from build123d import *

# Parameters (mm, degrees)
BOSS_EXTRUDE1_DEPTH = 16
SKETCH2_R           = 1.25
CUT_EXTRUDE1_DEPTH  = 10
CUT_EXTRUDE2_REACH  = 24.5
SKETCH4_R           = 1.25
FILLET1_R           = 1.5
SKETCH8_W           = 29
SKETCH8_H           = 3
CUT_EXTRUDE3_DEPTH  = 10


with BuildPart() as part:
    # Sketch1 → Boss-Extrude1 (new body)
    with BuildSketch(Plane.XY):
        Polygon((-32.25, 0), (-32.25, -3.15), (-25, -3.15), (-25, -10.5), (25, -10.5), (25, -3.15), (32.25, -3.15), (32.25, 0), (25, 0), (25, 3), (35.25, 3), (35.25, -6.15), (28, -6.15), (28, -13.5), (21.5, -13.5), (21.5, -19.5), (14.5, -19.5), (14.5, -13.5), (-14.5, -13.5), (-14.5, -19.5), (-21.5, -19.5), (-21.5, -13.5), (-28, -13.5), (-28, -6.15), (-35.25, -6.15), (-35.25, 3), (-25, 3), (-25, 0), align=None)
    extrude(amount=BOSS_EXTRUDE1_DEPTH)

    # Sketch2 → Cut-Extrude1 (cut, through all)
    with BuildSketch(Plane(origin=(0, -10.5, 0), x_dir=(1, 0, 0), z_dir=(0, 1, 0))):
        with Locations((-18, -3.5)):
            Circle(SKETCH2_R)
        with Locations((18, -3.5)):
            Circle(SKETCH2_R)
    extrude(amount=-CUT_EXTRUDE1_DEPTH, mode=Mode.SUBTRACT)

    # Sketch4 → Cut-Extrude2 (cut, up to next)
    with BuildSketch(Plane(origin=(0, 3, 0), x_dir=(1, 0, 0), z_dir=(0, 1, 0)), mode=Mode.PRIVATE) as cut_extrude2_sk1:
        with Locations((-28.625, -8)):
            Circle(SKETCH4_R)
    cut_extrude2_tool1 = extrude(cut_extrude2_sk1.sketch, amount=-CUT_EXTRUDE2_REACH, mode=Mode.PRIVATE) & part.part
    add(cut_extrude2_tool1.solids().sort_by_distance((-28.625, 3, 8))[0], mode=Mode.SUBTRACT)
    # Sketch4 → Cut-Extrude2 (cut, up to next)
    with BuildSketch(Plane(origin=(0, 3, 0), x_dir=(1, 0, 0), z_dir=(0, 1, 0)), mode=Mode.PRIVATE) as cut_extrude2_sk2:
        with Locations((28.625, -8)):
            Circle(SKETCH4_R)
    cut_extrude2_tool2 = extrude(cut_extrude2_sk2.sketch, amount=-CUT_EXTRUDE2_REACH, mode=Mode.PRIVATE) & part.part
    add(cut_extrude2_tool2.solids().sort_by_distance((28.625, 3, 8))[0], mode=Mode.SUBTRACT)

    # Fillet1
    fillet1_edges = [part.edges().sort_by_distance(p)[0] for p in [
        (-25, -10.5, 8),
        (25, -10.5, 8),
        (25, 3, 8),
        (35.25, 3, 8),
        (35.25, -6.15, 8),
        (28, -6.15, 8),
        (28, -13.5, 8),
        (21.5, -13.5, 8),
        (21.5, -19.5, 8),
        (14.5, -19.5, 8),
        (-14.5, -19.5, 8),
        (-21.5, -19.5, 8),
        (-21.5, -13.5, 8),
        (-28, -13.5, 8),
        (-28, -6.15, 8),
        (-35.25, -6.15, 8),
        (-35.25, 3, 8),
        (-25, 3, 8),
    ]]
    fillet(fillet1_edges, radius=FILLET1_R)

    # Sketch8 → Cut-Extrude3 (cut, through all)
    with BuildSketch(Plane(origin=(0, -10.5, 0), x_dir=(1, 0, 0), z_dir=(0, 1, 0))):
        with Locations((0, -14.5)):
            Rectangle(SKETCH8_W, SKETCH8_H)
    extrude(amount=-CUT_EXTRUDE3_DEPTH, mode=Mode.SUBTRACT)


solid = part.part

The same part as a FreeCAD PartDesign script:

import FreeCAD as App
import Part
import Sketcher


def edges_at(feature, points):
    """Names of the edges that pass closest to the given points."""
    edges = feature.Shape.Edges
    near = lambda p: min(range(len(edges)), key=lambda i: edges[i].distToShape(Part.Vertex(*p))[0])
    return sorted({f"Edge{near(p) + 1}" for p in points})

doc = App.newDocument("Part")
body = doc.addObject("PartDesign::Body", "Body")

sketch1 = body.newObject("Sketcher::SketchObject", "Sketch")
sketch1.AttachmentSupport = (doc.getObject("XY_Plane"), [""])
sketch1.MapMode = "FlatFace"
sketch1.addGeometry(Part.LineSegment(App.Vector(-32.2, -3.1, 0), App.Vector(-32.2, 0, 0)), False)
sketch1.addGeometry(Part.LineSegment(App.Vector(-32.2, 0, 0), App.Vector(-25, 0, 0)), False)
sketch1.addGeometry(Part.LineSegment(App.Vector(-25, 0, 0), App.Vector(-25, 3, 0)), False)
sketch1.addGeometry(Part.LineSegment(App.Vector(-25, 3, 0), App.Vector(-35.2, 3, 0)), False)
sketch1.addGeometry(Part.LineSegment(App.Vector(-35.2, 3, 0), App.Vector(-35.2, -6.2, 0)), False)
sketch1.addGeometry(Part.LineSegment(App.Vector(-35.2, -6.2, 0), App.Vector(-28, -6.2, 0)), False)
sketch1.addGeometry(Part.LineSegment(App.Vector(-28, -6.2, 0), App.Vector(-28, -13.5, 0)), False)
sketch1.addGeometry(Part.LineSegment(App.Vector(-28, -13.5, 0), App.Vector(-21.5, -13.5, 0)), False)
sketch1.addGeometry(Part.LineSegment(App.Vector(-21.5, -13.5, 0), App.Vector(-21.5, -19.5, 0)), False)
sketch1.addGeometry(Part.LineSegment(App.Vector(-21.5, -19.5, 0), App.Vector(-14.5, -19.5, 0)), False)
sketch1.addGeometry(Part.LineSegment(App.Vector(-14.5, -19.5, 0), App.Vector(-14.5, -13.5, 0)), False)
sketch1.addGeometry(Part.LineSegment(App.Vector(-14.5, -13.5, 0), App.Vector(14.5, -13.5, 0)), False)
sketch1.addGeometry(Part.LineSegment(App.Vector(14.5, -13.5, 0), App.Vector(14.5, -19.5, 0)), False)
sketch1.addGeometry(Part.LineSegment(App.Vector(14.5, -19.5, 0), App.Vector(21.5, -19.5, 0)), False)
sketch1.addGeometry(Part.LineSegment(App.Vector(21.5, -19.5, 0), App.Vector(21.5, -13.5, 0)), False)
sketch1.addGeometry(Part.LineSegment(App.Vector(21.5, -13.5, 0), App.Vector(28, -13.5, 0)), False)
sketch1.addGeometry(Part.LineSegment(App.Vector(28, -13.5, 0), App.Vector(28, -6.2, 0)), False)
sketch1.addGeometry(Part.LineSegment(App.Vector(28, -6.2, 0), App.Vector(35.2, -6.2, 0)), False)
sketch1.addGeometry(Part.LineSegment(App.Vector(35.2, -6.2, 0), App.Vector(35.2, 3, 0)), False)
sketch1.addGeometry(Part.LineSegment(App.Vector(35.2, 3, 0), App.Vector(25, 3, 0)), False)
sketch1.addGeometry(Part.LineSegment(App.Vector(25, 3, 0), App.Vector(25, 0, 0)), False)
sketch1.addGeometry(Part.LineSegment(App.Vector(25, 0, 0), App.Vector(32.2, 0, 0)), False)
sketch1.addGeometry(Part.LineSegment(App.Vector(32.2, 0, 0), App.Vector(32.2, -3.1, 0)), False)
sketch1.addGeometry(Part.LineSegment(App.Vector(32.2, -3.1, 0), App.Vector(25, -3.1, 0)), False)
sketch1.addGeometry(Part.LineSegment(App.Vector(25, -3.1, 0), App.Vector(25, -10.5, 0)), False)
sketch1.addGeometry(Part.LineSegment(App.Vector(25, -10.5, 0), App.Vector(-25, -10.5, 0)), False)
sketch1.addGeometry(Part.LineSegment(App.Vector(-25, -10.5, 0), App.Vector(-25, -3.1, 0)), False)
sketch1.addGeometry(Part.LineSegment(App.Vector(-25, -3.1, 0), App.Vector(-32.2, -3.1, 0)), False)
sketch1.addConstraint(Sketcher.Constraint("Coincident", 0, 2, 1, 1))
sketch1.addConstraint(Sketcher.Constraint("Coincident", 1, 2, 2, 1))
sketch1.addConstraint(Sketcher.Constraint("Coincident", 2, 2, 3, 1))
sketch1.addConstraint(Sketcher.Constraint("Coincident", 3, 2, 4, 1))
sketch1.addConstraint(Sketcher.Constraint("Coincident", 4, 2, 5, 1))
sketch1.addConstraint(Sketcher.Constraint("Coincident", 5, 2, 6, 1))
sketch1.addConstraint(Sketcher.Constraint("Coincident", 6, 2, 7, 1))
sketch1.addConstraint(Sketcher.Constraint("Coincident", 7, 2, 8, 1))
sketch1.addConstraint(Sketcher.Constraint("Coincident", 8, 2, 9, 1))
sketch1.addConstraint(Sketcher.Constraint("Coincident", 9, 2, 10, 1))
sketch1.addConstraint(Sketcher.Constraint("Coincident", 10, 2, 11, 1))
sketch1.addConstraint(Sketcher.Constraint("Coincident", 11, 2, 12, 1))
sketch1.addConstraint(Sketcher.Constraint("Coincident", 12, 2, 13, 1))
sketch1.addConstraint(Sketcher.Constraint("Coincident", 13, 2, 14, 1))
sketch1.addConstraint(Sketcher.Constraint("Coincident", 14, 2, 15, 1))
sketch1.addConstraint(Sketcher.Constraint("Coincident", 15, 2, 16, 1))
sketch1.addConstraint(Sketcher.Constraint("Coincident", 16, 2, 17, 1))
sketch1.addConstraint(Sketcher.Constraint("Coincident", 17, 2, 18, 1))
sketch1.addConstraint(Sketcher.Constraint("Coincident", 18, 2, 19, 1))
sketch1.addConstraint(Sketcher.Constraint("Coincident", 19, 2, 20, 1))
sketch1.addConstraint(Sketcher.Constraint("Coincident", 20, 2, 21, 1))
sketch1.addConstraint(Sketcher.Constraint("Coincident", 21, 2, 22, 1))
sketch1.addConstraint(Sketcher.Constraint("Coincident", 22, 2, 23, 1))
sketch1.addConstraint(Sketcher.Constraint("Coincident", 23, 2, 24, 1))
sketch1.addConstraint(Sketcher.Constraint("Coincident", 24, 2, 25, 1))
sketch1.addConstraint(Sketcher.Constraint("Coincident", 25, 2, 26, 1))
sketch1.addConstraint(Sketcher.Constraint("Coincident", 26, 2, 27, 1))
sketch1.addConstraint(Sketcher.Constraint("Coincident", 27, 2, 0, 1))
sketch1.addConstraint(Sketcher.Constraint("Vertical", 0))
sketch1.addConstraint(Sketcher.Constraint("Horizontal", 1))
sketch1.addConstraint(Sketcher.Constraint("Vertical", 2))
sketch1.addConstraint(Sketcher.Constraint("Horizontal", 3))
sketch1.addConstraint(Sketcher.Constraint("Vertical", 4))
sketch1.addConstraint(Sketcher.Constraint("Horizontal", 5))
sketch1.addConstraint(Sketcher.Constraint("Vertical", 6))
sketch1.addConstraint(Sketcher.Constraint("Horizontal", 7))
sketch1.addConstraint(Sketcher.Constraint("Vertical", 8))
sketch1.addConstraint(Sketcher.Constraint("Horizontal", 9))
sketch1.addConstraint(Sketcher.Constraint("Vertical", 10))
sketch1.addConstraint(Sketcher.Constraint("Horizontal", 11))
sketch1.addConstraint(Sketcher.Constraint("Vertical", 12))
sketch1.addConstraint(Sketcher.Constraint("Horizontal", 13))
sketch1.addConstraint(Sketcher.Constraint("Vertical", 14))
sketch1.addConstraint(Sketcher.Constraint("Horizontal", 15))
sketch1.addConstraint(Sketcher.Constraint("Vertical", 16))
sketch1.addConstraint(Sketcher.Constraint("Horizontal", 17))
sketch1.addConstraint(Sketcher.Constraint("Vertical", 18))
sketch1.addConstraint(Sketcher.Constraint("Horizontal", 19))
sketch1.addConstraint(Sketcher.Constraint("Vertical", 20))
sketch1.addConstraint(Sketcher.Constraint("Horizontal", 21))
sketch1.addConstraint(Sketcher.Constraint("Vertical", 22))
sketch1.addConstraint(Sketcher.Constraint("Horizontal", 23))
sketch1.addConstraint(Sketcher.Constraint("Vertical", 24))
sketch1.addConstraint(Sketcher.Constraint("Horizontal", 25))
sketch1.addConstraint(Sketcher.Constraint("Vertical", 26))
sketch1.addConstraint(Sketcher.Constraint("Horizontal", 27))
sketch1.addConstraint(Sketcher.Constraint("Symmetric", 1, 2, 20, 2, -1, 1))
sketch1.addConstraint(Sketcher.Constraint("Symmetric", 9, 2, 12, 2, -2))
sketch1.addConstraint(Sketcher.Constraint("Symmetric", 7, 2, 14, 2, -2))
sketch1.addConstraint(Sketcher.Constraint("Symmetric", 5, 2, 16, 2, -2))
sketch1.addConstraint(Sketcher.Constraint("Symmetric", 3, 2, 18, 2, -2))
sketch1.addConstraint(Sketcher.Constraint("Symmetric", 0, 2, 21, 2, -2))
sketch1.addConstraint(Sketcher.Constraint("Symmetric", 23, 2, 26, 2, -2))
sketch1.addConstraint(Sketcher.Constraint("Horizontal", 7, 2, 10, 2))
sketch1.addConstraint(Sketcher.Constraint("Vertical", 20, 2, 23, 2))
sketch1.addConstraint(Sketcher.Constraint("Equal", 1, 5))
sketch1.addConstraint(Sketcher.Constraint("Equal", 16, 24))
sketch1.addConstraint(Sketcher.Constraint("DistanceX", 9, 1, 9, 2, 7.0))
sketch1.addConstraint(Sketcher.Constraint("DistanceX", 11, 1, 11, 2, 29.0))
sketch1.addConstraint(Sketcher.Constraint("DistanceX", 25, 2, 25, 1, 50.0))
sketch1.addConstraint(Sketcher.Constraint("DistanceY", 2, 1, 2, 2, 3.0))
sketch1.addConstraint(Sketcher.Constraint("DistanceY", 8, 2, 8, 1, 6.0))
sketch1.addConstraint(Sketcher.Constraint("DistanceX", 7, 1, 7, 2, 6.5))
sketch1.addConstraint(Sketcher.Constraint("DistanceY", 17, 2, 22, 2, 3.0))
sketch1.addConstraint(Sketcher.Constraint("DistanceX", 1, 1, 1, 2, 7.25))
sketch1.addConstraint(Sketcher.Constraint("DistanceY", 0, 1, 0, 2, 3.15))
sketch1.addConstraint(Sketcher.Constraint("DistanceY", 6, 2, 6, 1, 7.35))
pad1 = body.newObject("PartDesign::Pad", "Pad")
pad1.Profile = sketch1
pad1.Length = 16

sketch2 = body.newObject("Sketcher::SketchObject", "Sketch001")
sketch2.AttachmentSupport = (doc.getObject("XZ_Plane"), [""])
sketch2.MapMode = "FlatFace"
sketch2.AttachmentOffset = App.Placement(App.Vector(0, 0, 10.5), App.Rotation())
sketch2.addGeometry(Part.Circle(App.Vector(-18, 3.5, 0), App.Vector(0, 0, 1), 1.2), False)
sketch2.addGeometry(Part.Circle(App.Vector(18, 3.5, 0), App.Vector(0, 0, 1), 1.2), False)
sketch2.addConstraint(Sketcher.Constraint("Equal", 0, 1))
sketch2.addConstraint(Sketcher.Constraint("Symmetric", 0, 3, 1, 3, -2))
sketch2.addConstraint(Sketcher.Constraint("Diameter", 0, 2.5))
sketch2.addConstraint(Sketcher.Constraint("DistanceX", 0, 3, -1, 1, 18.0))
sketch2.addConstraint(Sketcher.Constraint("DistanceY", -1, 1, 0, 3, 3.5))
pocket1 = body.newObject("PartDesign::Pocket", "Pocket")
pocket1.Profile = sketch2
pocket1.Type = "ThroughAll"
pocket1.Reversed = True

sketch3 = body.newObject("Sketcher::SketchObject", "Sketch002")
sketch3.AttachmentSupport = (doc.getObject("XZ_Plane"), [""])
sketch3.MapMode = "FlatFace"
sketch3.AttachmentOffset = App.Placement(App.Vector(0, 0, -3), App.Rotation())
sketch3.addGeometry(Part.Circle(App.Vector(-28.6, 8, 0), App.Vector(0, 0, 1), 1.2), False)
sketch3.addConstraint(Sketcher.Constraint("Diameter", 0, 2.5))
sketch3.addConstraint(Sketcher.Constraint("DistanceY", -1, 1, 0, 3, 8.0))
sketch3.addConstraint(Sketcher.Constraint("DistanceX", 0, 3, -1, 1, 28.625))
pocket2 = body.newObject("PartDesign::Pocket", "Pocket001")
pocket2.Profile = sketch3
pocket2.Type = "UpToFirst"
pocket2.Reversed = True

sketch4 = body.newObject("Sketcher::SketchObject", "Sketch003")
sketch4.AttachmentSupport = (doc.getObject("XZ_Plane"), [""])
sketch4.MapMode = "FlatFace"
sketch4.AttachmentOffset = App.Placement(App.Vector(0, 0, -3), App.Rotation())
sketch4.addGeometry(Part.Circle(App.Vector(28.6, 8, 0), App.Vector(0, 0, 1), 1.2), False)
sketch4.addConstraint(Sketcher.Constraint("Diameter", 0, 2.5))
sketch4.addConstraint(Sketcher.Constraint("DistanceY", -1, 1, 0, 3, 8.0))
sketch4.addConstraint(Sketcher.Constraint("DistanceX", -1, 1, 0, 3, 28.625))
pocket3 = body.newObject("PartDesign::Pocket", "Pocket002")
pocket3.Profile = sketch4
pocket3.Type = "UpToFirst"
pocket3.Reversed = True
doc.recompute()

fillet = body.newObject("PartDesign::Fillet", "Fillet")
fillet.Base = (pocket3, edges_at(pocket3, [
    (-25, -10.5, 8),
    (25, -10.5, 8),
    (25, 3, 8),
    (35.25, 3, 8),
    (35.25, -6.15, 8),
    (28, -6.15, 8),
    (28, -13.5, 8),
    (21.5, -13.5, 8),
    (21.5, -19.5, 8),
    (14.5, -19.5, 8),
    (-14.5, -19.5, 8),
    (-21.5, -19.5, 8),
    (-21.5, -13.5, 8),
    (-28, -13.5, 8),
    (-28, -6.15, 8),
    (-35.25, -6.15, 8),
    (-35.25, 3, 8),
    (-25, 3, 8),
]))
fillet.Radius = 1.5

sketch5 = body.newObject("Sketcher::SketchObject", "Sketch004")
sketch5.AttachmentSupport = (doc.getObject("XZ_Plane"), [""])
sketch5.MapMode = "FlatFace"
sketch5.AttachmentOffset = App.Placement(App.Vector(0, 0, 10.5), App.Rotation())
sketch5.addGeometry(Part.LineSegment(App.Vector(-14.5, 13, 0), App.Vector(-14.5, 16, 0)), False)
sketch5.addGeometry(Part.LineSegment(App.Vector(-14.5, 16, 0), App.Vector(14.5, 16, 0)), False)
sketch5.addGeometry(Part.LineSegment(App.Vector(14.5, 16, 0), App.Vector(14.5, 13, 0)), False)
sketch5.addGeometry(Part.LineSegment(App.Vector(14.5, 13, 0), App.Vector(-14.5, 13, 0)), False)
sketch5.addConstraint(Sketcher.Constraint("Coincident", 0, 2, 1, 1))
sketch5.addConstraint(Sketcher.Constraint("Coincident", 1, 2, 2, 1))
sketch5.addConstraint(Sketcher.Constraint("Coincident", 2, 2, 3, 1))
sketch5.addConstraint(Sketcher.Constraint("Coincident", 3, 2, 0, 1))
sketch5.addConstraint(Sketcher.Constraint("Vertical", 0))
sketch5.addConstraint(Sketcher.Constraint("Horizontal", 1))
sketch5.addConstraint(Sketcher.Constraint("Vertical", 2))
sketch5.addConstraint(Sketcher.Constraint("Horizontal", 3))
sketch5.addConstraint(Sketcher.Constraint("DistanceX", 1, 1, 1, 2, 29.0))
sketch5.addConstraint(Sketcher.Constraint("DistanceY", 0, 1, 0, 2, 3.0))
sketch5.addConstraint(Sketcher.Constraint("DistanceY", -1, 1, 0, 2, 16.0))
sketch5.addConstraint(Sketcher.Constraint("DistanceX", 0, 2, -1, 1, 14.5))
pocket4 = body.newObject("PartDesign::Pocket", "Pocket003")
pocket4.Profile = sketch5
pocket4.Type = "ThroughAll"
pocket4.Reversed = True

doc.recompute()
